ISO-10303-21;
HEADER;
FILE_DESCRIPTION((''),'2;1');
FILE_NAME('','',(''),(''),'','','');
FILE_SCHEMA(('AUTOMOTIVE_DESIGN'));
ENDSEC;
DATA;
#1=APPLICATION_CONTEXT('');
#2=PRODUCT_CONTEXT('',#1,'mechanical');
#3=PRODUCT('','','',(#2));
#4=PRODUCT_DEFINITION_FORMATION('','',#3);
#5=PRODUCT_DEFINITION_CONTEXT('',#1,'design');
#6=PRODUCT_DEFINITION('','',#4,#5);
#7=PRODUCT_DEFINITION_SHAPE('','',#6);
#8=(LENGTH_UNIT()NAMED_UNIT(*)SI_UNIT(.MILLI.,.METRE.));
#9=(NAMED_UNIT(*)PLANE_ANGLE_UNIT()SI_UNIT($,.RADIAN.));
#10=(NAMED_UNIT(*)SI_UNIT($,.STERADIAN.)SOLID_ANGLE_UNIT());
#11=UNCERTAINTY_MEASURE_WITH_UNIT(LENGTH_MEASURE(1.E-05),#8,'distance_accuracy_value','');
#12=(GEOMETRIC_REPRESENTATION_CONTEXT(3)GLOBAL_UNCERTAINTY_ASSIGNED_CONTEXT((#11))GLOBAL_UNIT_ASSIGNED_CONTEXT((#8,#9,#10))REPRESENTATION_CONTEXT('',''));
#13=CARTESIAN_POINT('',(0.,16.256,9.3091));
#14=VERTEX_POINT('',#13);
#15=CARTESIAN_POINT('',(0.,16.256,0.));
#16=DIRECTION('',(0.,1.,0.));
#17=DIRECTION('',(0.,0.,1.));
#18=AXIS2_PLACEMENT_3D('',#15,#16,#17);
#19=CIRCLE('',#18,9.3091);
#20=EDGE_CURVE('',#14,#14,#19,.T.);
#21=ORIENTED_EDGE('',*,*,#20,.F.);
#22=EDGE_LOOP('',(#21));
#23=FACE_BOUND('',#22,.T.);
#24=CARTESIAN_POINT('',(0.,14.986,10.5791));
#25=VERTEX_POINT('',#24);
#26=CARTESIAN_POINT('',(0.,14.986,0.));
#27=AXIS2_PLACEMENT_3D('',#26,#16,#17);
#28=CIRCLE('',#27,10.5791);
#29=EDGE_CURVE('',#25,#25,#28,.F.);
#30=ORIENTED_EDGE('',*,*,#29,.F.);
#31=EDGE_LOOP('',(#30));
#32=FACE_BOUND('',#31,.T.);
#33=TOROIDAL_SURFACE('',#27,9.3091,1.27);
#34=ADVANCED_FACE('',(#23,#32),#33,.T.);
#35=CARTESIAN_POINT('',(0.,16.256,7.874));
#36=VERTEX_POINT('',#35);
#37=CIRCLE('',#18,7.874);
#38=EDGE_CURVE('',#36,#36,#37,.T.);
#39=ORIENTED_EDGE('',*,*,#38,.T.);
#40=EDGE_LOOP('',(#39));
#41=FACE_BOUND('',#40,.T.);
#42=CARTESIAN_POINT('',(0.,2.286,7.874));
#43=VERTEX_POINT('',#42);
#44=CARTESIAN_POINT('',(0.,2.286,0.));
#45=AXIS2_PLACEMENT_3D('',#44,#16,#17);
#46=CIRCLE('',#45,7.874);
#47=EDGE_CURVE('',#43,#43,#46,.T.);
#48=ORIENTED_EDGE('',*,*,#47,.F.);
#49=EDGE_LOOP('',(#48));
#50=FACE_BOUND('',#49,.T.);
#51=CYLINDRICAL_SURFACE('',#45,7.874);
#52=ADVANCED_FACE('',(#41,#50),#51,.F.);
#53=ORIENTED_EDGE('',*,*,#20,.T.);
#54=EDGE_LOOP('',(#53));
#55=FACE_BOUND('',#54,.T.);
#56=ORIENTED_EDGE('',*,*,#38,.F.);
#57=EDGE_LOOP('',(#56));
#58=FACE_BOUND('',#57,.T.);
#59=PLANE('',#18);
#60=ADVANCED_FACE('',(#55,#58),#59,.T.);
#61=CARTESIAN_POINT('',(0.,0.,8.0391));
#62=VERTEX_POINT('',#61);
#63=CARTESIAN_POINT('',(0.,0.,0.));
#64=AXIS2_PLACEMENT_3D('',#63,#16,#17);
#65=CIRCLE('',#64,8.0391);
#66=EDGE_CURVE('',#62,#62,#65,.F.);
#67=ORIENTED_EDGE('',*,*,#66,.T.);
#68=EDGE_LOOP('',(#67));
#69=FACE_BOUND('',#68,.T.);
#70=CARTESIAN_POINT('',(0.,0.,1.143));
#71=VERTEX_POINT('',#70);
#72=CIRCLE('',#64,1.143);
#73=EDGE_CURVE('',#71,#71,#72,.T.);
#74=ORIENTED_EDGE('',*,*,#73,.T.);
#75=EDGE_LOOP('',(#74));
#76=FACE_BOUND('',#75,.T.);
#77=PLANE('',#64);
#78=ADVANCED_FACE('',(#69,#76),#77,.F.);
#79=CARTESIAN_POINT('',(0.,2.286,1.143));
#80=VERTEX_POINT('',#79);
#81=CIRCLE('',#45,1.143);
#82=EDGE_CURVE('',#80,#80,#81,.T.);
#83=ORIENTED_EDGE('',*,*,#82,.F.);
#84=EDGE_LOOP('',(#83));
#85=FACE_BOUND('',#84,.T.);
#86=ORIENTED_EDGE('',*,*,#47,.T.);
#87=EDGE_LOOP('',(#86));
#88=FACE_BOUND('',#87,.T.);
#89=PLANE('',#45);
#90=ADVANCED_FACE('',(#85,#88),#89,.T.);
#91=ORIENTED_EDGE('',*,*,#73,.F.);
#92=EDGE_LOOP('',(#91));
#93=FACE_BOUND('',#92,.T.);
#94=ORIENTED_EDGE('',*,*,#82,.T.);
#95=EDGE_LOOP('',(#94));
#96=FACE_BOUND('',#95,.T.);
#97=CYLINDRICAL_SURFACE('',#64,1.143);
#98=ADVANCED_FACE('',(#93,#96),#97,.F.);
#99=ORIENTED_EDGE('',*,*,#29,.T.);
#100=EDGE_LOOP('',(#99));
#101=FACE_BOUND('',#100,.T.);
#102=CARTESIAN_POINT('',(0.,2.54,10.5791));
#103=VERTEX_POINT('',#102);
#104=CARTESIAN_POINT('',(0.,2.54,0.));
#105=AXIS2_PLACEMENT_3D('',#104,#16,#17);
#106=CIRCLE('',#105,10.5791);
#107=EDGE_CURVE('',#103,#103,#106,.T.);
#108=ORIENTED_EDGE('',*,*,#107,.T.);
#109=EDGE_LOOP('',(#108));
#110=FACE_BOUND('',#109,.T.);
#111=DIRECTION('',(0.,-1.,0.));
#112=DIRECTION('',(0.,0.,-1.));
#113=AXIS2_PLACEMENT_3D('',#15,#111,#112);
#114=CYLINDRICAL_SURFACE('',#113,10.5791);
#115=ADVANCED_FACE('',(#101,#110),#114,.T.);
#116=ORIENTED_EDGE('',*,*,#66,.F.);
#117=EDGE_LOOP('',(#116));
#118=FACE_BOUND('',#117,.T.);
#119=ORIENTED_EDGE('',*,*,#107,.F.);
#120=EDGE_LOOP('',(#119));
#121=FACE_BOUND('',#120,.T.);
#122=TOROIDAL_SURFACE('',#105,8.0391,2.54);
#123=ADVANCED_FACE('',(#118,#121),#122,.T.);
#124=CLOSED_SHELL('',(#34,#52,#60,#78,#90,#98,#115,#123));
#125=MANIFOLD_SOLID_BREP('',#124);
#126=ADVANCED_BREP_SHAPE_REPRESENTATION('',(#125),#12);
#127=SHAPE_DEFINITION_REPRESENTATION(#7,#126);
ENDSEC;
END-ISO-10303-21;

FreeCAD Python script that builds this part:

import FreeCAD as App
import Part
import Sketcher
from FreeCAD import Vector
Q = App.Units.Quantity


def edges_at(feature, points):
    """Names of the edges that pass closest to the given points."""
    edges = feature.Shape.Edges
    near = lambda p: min(range(len(edges)), key=lambda i: edges[i].distToShape(Part.Vertex(*p))[0])
    return sorted({f"Edge{near(p) + 1}" for p in points})

doc = App.newDocument("Part")
body = doc.addObject("PartDesign::Body", "Body")

# Sketch on XZ plane
sketch1 = body.newObject("Sketcher::SketchObject", "Sketch")
sketch1.AttachmentSupport = (doc.getObject("XZ_Plane"), [""])
sketch1.MapMode = "FlatFace"
sketch1.addGeometry(Part.Circle(Vector(0, 0, 0), Vector(0, 0, 1), 10.5791), False)
sketch1.addConstraint([
    Sketcher.Constraint("Coincident", 0, 3, -1, 1),
    Sketcher.Constraint("Diameter", 0, Q("0.833 in")),
])
pad1 = body.newObject("PartDesign::Pad", "Pad")
pad1.Profile = sketch1
pad1.Length = Q("0.64 in")
pad1.Reversed = True

# Sketch on XZ plane
sketch2 = body.newObject("Sketcher::SketchObject", "Sketch001")
sketch2.AttachmentSupport = (doc.getObject("XZ_Plane"), [""])
sketch2.MapMode = "FlatFace"
sketch2.AttachmentOffset = App.Placement(Vector(0, 0, -0.64 * 25.4), App.Rotation())
sketch2.addGeometry(Part.Circle(Vector(0, 0, 0), Vector(0, 0, 1), 7.874), False)
sketch2.addConstraint([
    Sketcher.Constraint("Coincident", 0, 3, -1, 1),
    Sketcher.Constraint("Diameter", 0, Q("0.62 in")),
])
pocket1 = body.newObject("PartDesign::Pocket", "Pocket")
pocket1.Profile = sketch2
pocket1.Length = Q("0.55 in")
pocket1.Reversed = True
doc.recompute()

fillet = body.newObject("PartDesign::Fillet", "Fillet")
fillet.Base = (pocket1, edges_at(pocket1, [(0, 16.256, -10.579)]))
fillet.Radius = Q("0.05 in")
doc.recompute()

fillet2 = body.newObject("PartDesign::Fillet", "Fillet001")
fillet2.Base = (fillet, edges_at(fillet, [(0, 0, -10.579)]))
fillet2.Radius = Q("0.1 in")

# Sketch on XZ plane
sketch3 = body.newObject("Sketcher::SketchObject", "Sketch002")
sketch3.AttachmentSupport = (doc.getObject("XZ_Plane"), [""])
sketch3.MapMode = "FlatFace"
sketch3.AttachmentOffset = App.Placement(Vector(0, 0, -0.09 * 25.4), App.Rotation())
sketch3.addGeometry(Part.Circle(Vector(0, 0, 0), Vector(0, 0, 1), 1.143), False)
sketch3.addConstraint([
    Sketcher.Constraint("Coincident", 0, 3, -1, 1),
    Sketcher.Constraint("Diameter", 0, Q("0.09 in")),
])
pocket2 = body.newObject("PartDesign::Pocket", "Pocket001")
pocket2.Profile = sketch3
pocket2.Type = "ThroughAll"
pocket2.Reversed = True

doc.recompute()
